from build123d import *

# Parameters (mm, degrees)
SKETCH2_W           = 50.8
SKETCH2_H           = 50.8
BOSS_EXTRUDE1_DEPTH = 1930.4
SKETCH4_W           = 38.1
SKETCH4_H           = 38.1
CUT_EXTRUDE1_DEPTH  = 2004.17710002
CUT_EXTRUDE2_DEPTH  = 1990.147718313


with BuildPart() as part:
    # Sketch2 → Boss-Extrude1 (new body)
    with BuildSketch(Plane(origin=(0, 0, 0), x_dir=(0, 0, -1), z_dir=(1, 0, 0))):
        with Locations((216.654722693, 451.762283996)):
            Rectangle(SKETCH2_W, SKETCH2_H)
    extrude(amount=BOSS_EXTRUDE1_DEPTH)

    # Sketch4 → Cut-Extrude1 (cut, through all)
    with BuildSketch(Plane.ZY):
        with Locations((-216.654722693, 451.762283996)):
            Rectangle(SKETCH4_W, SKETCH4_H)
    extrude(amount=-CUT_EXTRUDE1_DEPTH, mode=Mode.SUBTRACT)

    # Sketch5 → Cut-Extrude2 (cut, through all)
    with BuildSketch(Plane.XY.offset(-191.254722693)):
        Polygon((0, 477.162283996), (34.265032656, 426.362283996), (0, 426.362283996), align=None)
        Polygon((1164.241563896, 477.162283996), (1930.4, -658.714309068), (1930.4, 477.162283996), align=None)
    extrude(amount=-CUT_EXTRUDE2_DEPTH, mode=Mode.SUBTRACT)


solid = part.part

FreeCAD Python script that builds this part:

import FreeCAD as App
import Part
import Sketcher

V = App.Vector
Q = App.Units.Quantity

doc = App.newDocument("Part")
params = doc.addObject("Spreadsheet::Sheet", "Params")
for row, (alias, value) in enumerate([
    ("sketch1_width", "2 in"),
    ("pad1_length", "76 in"),
    ("sketch2_width", "1.5 in"),
    ("sketch3_height", "2 in"),
], start=1):
    params.set(f"A{row}", alias)
    params.set(f"B{row}", "=" + value)
    params.setAlias(f"B{row}", alias)

body = doc.addObject("PartDesign::Body", "Body")

# Sketch on YZ plane
sketch1 = body.newObject("Sketcher::SketchObject", "Sketch")
sketch1.AttachmentSupport = (doc.getObject("YZ_Plane"), [""])
sketch1.MapMode = "FlatFace"
sketch1.addGeometry([
    Part.LineSegment(V(477, -191, 0), V(426, -191, 0)),
    Part.LineSegment(V(426, -191, 0), V(426, -242, 0)),
    Part.LineSegment(V(426, -242, 0), V(477, -242, 0)),
    Part.LineSegment(V(477, -242, 0), V(477, -191, 0)),
], False)
sketch1.addConstraint([
    Sketcher.Constraint("Coincident", 0, 2, 1, 1),
    Sketcher.Constraint("Coincident", 1, 2, 2, 1),
    Sketcher.Constraint("Coincident", 2, 2, 3, 1),
    Sketcher.Constraint("Coincident", 3, 2, 0, 1),
    Sketcher.Constraint("Horizontal", 0),
    Sketcher.Constraint("Vertical", 1),
    Sketcher.Constraint("Horizontal", 2),
    Sketcher.Constraint("Vertical", 3),
    Sketcher.Constraint("Equal", 2, 1),
    Sketcher.Constraint("DistanceX", 0, 2, 0, 1, Q("2 in")),
    Sketcher.Constraint("DistanceX", -1, 1, 0, 2, 426.362284),
    Sketcher.Constraint("DistanceY", 0, 2, -1, 1, 191.254723),
])
sketch1.setExpression("Constraints[9]", "Params.sketch1_width")
pad1 = body.newObject("PartDesign::Pad", "Pad")
pad1.Profile = sketch1
pad1.setExpression("Length", "Params.pad1_length")

# Sketch on YZ plane
sketch2 = body.newObject("Sketcher::SketchObject", "Sketch001")
sketch2.AttachmentSupport = (doc.getObject("YZ_Plane"), [""])
sketch2.MapMode = "FlatFace"
sketch2.addGeometry([
    Part.LineSegment(V(471, -236, 0), V(433, -236, 0)),
    Part.LineSegment(V(433, -236, 0), V(433, -198, 0)),
    Part.LineSegment(V(433, -198, 0), V(471, -198, 0)),
    Part.LineSegment(V(471, -198, 0), V(471, -236, 0)),
], False)
sketch2.addConstraint([
    Sketcher.Constraint("Coincident", 0, 2, 1, 1),
    Sketcher.Constraint("Coincident", 1, 2, 2, 1),
    Sketcher.Constraint("Coincident", 2, 2, 3, 1),
    Sketcher.Constraint("Coincident", 3, 2, 0, 1),
    Sketcher.Constraint("Horizontal", 0),
    Sketcher.Constraint("Vertical", 1),
    Sketcher.Constraint("Horizontal", 2),
    Sketcher.Constraint("Vertical", 3),
    Sketcher.Constraint("Equal", 2, 1),
    Sketcher.Constraint("DistanceX", 0, 2, 0, 1, Q("1.5 in")),
    Sketcher.Constraint("DistanceX", -1, 1, 0, 2, 432.712284),
    Sketcher.Constraint("DistanceY", 0, 2, -1, 1, 235.704723),
])
sketch2.setExpression("Constraints[9]", "Params.sketch2_width")
pocket1 = body.newObject("PartDesign::Pocket", "Pocket")
pocket1.Profile = sketch2
pocket1.Type = "ThroughAll"
pocket1.Reversed = True

# Sketch on XY plane
sketch3 = body.newObject("Sketcher::SketchObject", "Sketch002")
sketch3.AttachmentSupport = (doc.getObject("XY_Plane"), [""])
sketch3.MapMode = "FlatFace"
sketch3.AttachmentOffset = App.Placement(V(0, 0, -191.254723), App.Rotation())
sketch3.addGeometry([
    Part.LineSegment(V(34, 426, 0), V(0, 477, 0)),  # 0
    Part.LineSegment(V(0, 477, 0), V(0, 426, 0)),  # 1
    Part.LineSegment(V(0, 426, 0), V(34, 426, 0)),  # 2
    Part.LineSegment(V(1164, 477, 0), V(1930, -659, 0)),  # 3
    Part.LineSegment(V(1930, -659, 0), V(1930, 477, 0)),  # 4
    Part.LineSegment(V(1930, 477, 0), V(1164, 477, 0)),  # 5
], False)
sketch3.addConstraint([
    Sketcher.Constraint("Coincident", 0, 2, 1, 1),
    Sketcher.Constraint("Coincident", 1, 2, 2, 1),
    Sketcher.Constraint("Coincident", 2, 2, 0, 1),
    Sketcher.Constraint("Coincident", 3, 2, 4, 1),
    Sketcher.Constraint("Coincident", 4, 2, 5, 1),
    Sketcher.Constraint("Coincident", 5, 2, 3, 1),
    Sketcher.Constraint("Vertical", 1),
    Sketcher.Constraint("Horizontal", 2),
    Sketcher.Constraint("Vertical", 4),
    Sketcher.Constraint("Horizontal", 5),
    Sketcher.Constraint("PointOnObject", 0, 2, -2),
    Sketcher.Constraint("Parallel", 0, 3),
    Sketcher.Constraint("Horizontal", 0, 2, 4, 2),
    Sketcher.Constraint("DistanceY", 1, 2, 1, 1, Q("2 in")),
    Sketcher.Constraint("DistanceX", -1, 1, 3, 2, Q("76 in")),
    Sketcher.Constraint("Angle", 0, Q("124 deg")),
    Sketcher.Constraint("DistanceX", 5, 2, 5, 1, 766.158436),
    Sketcher.Constraint("DistanceY", 3, 2, -1, 1, 658.714309),
])
sketch3.setExpression("Constraints[13]", "Params.sketch3_height")
pocket2 = body.newObject("PartDesign::Pocket", "Pocket001")
pocket2.Profile = sketch3
pocket2.Type = "ThroughAll"

doc.recompute()
